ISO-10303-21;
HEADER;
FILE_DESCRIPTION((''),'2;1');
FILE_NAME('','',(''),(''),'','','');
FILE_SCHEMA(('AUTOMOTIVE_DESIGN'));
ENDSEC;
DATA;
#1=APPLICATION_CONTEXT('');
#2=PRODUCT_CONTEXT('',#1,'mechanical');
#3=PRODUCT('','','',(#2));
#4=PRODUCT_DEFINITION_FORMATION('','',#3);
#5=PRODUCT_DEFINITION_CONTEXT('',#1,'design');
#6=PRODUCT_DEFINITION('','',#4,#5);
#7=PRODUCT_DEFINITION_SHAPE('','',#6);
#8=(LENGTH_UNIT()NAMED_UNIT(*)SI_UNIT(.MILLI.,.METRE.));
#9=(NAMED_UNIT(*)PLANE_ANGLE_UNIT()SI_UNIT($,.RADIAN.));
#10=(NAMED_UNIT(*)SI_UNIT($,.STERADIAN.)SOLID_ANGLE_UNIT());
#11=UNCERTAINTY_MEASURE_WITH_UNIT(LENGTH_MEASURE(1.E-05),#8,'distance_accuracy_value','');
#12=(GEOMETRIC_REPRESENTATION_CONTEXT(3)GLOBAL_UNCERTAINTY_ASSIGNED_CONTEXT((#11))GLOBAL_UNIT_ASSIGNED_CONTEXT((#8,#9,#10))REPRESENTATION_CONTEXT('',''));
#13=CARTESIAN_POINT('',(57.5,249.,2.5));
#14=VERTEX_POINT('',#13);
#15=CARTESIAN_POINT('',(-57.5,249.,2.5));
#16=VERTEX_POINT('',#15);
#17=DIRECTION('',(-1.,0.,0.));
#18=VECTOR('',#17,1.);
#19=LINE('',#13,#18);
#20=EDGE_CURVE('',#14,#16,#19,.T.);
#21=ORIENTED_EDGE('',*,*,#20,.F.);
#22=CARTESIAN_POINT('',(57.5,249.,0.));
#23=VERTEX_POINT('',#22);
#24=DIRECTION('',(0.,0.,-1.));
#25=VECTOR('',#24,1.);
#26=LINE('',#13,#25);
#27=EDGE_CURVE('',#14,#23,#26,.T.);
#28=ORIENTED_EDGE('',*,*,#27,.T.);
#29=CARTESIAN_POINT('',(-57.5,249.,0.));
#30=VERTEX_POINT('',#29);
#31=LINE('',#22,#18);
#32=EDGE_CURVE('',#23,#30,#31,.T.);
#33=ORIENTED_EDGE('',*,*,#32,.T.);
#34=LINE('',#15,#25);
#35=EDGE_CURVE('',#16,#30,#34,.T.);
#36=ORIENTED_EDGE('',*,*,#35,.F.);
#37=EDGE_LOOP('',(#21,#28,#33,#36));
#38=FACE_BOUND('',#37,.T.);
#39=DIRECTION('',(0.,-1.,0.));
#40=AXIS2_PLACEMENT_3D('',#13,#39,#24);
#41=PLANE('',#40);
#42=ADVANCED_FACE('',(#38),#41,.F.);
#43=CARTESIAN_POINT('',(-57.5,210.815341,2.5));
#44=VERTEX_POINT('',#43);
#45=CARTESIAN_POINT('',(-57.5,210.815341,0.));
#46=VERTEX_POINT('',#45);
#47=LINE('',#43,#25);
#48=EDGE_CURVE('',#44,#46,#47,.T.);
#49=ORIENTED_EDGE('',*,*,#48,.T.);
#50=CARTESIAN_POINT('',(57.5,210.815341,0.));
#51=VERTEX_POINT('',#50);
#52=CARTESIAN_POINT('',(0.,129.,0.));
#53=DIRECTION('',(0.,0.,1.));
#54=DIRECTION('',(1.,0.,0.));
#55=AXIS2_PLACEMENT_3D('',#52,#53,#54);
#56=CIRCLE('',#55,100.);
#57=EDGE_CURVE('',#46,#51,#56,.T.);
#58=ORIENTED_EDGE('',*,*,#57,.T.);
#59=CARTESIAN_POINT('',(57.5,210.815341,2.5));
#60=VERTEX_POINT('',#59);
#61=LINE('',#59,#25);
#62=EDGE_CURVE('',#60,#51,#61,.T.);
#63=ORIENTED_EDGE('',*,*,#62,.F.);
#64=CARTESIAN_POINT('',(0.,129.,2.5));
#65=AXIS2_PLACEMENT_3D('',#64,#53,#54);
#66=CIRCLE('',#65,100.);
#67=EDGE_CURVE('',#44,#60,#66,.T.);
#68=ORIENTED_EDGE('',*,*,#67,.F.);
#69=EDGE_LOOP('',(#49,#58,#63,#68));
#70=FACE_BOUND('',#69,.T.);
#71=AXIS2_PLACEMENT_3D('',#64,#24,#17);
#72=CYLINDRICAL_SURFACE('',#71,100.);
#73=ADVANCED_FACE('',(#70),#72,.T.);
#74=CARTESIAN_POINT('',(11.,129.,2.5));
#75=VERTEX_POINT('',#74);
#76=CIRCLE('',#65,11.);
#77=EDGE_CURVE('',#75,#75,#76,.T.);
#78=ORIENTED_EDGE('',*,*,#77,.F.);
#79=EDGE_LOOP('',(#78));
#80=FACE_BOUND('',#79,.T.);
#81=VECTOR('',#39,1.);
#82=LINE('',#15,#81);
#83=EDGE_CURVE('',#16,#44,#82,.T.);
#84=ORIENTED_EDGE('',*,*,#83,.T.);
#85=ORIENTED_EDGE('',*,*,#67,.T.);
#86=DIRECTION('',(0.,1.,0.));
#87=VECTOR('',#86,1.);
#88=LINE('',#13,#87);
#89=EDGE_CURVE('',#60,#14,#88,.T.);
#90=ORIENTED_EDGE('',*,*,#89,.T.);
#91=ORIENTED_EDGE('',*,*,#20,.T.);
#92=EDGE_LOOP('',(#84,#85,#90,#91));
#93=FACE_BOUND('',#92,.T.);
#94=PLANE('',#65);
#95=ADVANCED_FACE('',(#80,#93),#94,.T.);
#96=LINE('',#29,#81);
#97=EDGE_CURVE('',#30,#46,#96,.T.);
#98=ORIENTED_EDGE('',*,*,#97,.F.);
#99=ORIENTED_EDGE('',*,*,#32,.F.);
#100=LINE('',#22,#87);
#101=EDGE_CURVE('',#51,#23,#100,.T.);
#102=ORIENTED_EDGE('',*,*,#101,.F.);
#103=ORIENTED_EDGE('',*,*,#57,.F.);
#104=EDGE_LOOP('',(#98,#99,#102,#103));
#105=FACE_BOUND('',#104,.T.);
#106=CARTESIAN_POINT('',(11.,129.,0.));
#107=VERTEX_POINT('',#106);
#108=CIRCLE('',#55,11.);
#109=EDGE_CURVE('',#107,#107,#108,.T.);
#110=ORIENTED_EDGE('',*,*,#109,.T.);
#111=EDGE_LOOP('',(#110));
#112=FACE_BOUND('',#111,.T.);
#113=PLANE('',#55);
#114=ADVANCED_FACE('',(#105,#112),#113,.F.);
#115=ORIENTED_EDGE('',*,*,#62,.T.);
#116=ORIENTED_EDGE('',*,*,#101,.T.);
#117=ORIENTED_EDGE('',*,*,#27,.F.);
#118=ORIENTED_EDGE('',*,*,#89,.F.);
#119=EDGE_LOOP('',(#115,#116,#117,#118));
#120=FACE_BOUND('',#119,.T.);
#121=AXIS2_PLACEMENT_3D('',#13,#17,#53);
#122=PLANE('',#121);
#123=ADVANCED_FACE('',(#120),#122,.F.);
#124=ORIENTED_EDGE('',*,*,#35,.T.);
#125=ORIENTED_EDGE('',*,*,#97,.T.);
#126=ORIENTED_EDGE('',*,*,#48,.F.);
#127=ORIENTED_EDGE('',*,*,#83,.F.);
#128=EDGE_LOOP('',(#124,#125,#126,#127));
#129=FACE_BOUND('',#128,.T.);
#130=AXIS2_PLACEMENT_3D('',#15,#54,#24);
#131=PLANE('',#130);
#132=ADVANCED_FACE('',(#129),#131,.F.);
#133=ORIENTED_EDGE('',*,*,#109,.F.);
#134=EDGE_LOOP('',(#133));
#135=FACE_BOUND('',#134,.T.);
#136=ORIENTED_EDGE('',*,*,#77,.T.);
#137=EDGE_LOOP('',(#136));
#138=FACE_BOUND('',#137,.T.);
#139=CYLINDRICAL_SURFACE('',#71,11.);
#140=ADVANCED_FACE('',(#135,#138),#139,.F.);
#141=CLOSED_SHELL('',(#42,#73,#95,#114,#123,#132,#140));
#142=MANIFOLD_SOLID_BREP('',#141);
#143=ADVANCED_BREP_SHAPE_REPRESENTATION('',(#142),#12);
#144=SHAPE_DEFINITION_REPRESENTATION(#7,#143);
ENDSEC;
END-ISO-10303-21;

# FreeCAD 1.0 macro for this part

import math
import FreeCAD as App
import Part
import Sketcher

doc = App.newDocument("Part")
body = doc.addObject("PartDesign::Body", "Body")

# Sketch on XY plane
sketch1 = body.newObject("Sketcher::SketchObject", "Sketch")
sketch1.AttachmentSupport = (doc.getObject("XY_Plane"), [""])
sketch1.MapMode = "FlatFace"
sketch1.addGeometry(Part.LineSegment(App.Vector(-58, 249, 0), App.Vector(-58, 211, 0)), False)
sketch1.addGeometry(Part.ArcOfCircle(Part.Circle(App.Vector(0, 129, 0), App.Vector(0, 0, 1), 100), math.radians(125), math.radians(415)), False)
sketch1.addGeometry(Part.LineSegment(App.Vector(58, 211, 0), App.Vector(58, 249, 0)), False)
sketch1.addGeometry(Part.LineSegment(App.Vector(58, 249, 0), App.Vector(-58, 249, 0)), False)
sketch1.addGeometry(Part.Circle(App.Vector(0, 129, 0), App.Vector(0, 0, 1), 11), False)
sketch1.addConstraint(Sketcher.Constraint("Coincident", 0, 2, 1, 1))
sketch1.addConstraint(Sketcher.Constraint("Coincident", 1, 2, 2, 1))
sketch1.addConstraint(Sketcher.Constraint("Coincident", 2, 2, 3, 1))
sketch1.addConstraint(Sketcher.Constraint("Coincident", 3, 2, 0, 1))
sketch1.addConstraint(Sketcher.Constraint("Vertical", 0))
sketch1.addConstraint(Sketcher.Constraint("Vertical", 2))
sketch1.addConstraint(Sketcher.Constraint("Horizontal", 3))
sketch1.addConstraint(Sketcher.Constraint("Coincident", 4, 3, 1, 3))
sketch1.addConstraint(Sketcher.Constraint("Symmetric", 0, 2, 1, 2, -2))
sketch1.addConstraint(Sketcher.Constraint("Diameter", 4, 22.0))
sketch1.addConstraint(Sketcher.Constraint("Radius", 1, 100.0))
sketch1.addConstraint(Sketcher.Constraint("DistanceX", 3, 2, 3, 1, 115.0))
sketch1.addConstraint(Sketcher.Constraint("DistanceY", -1, 1, 1, 3, 129.0))
sketch1.addConstraint(Sketcher.Constraint("DistanceY", -1, 1, 2, 2, 249.0))
pad1 = body.newObject("PartDesign::Pad", "Pad")
pad1.Profile = sketch1
pad1.Length = 2.5

doc.recompute()
